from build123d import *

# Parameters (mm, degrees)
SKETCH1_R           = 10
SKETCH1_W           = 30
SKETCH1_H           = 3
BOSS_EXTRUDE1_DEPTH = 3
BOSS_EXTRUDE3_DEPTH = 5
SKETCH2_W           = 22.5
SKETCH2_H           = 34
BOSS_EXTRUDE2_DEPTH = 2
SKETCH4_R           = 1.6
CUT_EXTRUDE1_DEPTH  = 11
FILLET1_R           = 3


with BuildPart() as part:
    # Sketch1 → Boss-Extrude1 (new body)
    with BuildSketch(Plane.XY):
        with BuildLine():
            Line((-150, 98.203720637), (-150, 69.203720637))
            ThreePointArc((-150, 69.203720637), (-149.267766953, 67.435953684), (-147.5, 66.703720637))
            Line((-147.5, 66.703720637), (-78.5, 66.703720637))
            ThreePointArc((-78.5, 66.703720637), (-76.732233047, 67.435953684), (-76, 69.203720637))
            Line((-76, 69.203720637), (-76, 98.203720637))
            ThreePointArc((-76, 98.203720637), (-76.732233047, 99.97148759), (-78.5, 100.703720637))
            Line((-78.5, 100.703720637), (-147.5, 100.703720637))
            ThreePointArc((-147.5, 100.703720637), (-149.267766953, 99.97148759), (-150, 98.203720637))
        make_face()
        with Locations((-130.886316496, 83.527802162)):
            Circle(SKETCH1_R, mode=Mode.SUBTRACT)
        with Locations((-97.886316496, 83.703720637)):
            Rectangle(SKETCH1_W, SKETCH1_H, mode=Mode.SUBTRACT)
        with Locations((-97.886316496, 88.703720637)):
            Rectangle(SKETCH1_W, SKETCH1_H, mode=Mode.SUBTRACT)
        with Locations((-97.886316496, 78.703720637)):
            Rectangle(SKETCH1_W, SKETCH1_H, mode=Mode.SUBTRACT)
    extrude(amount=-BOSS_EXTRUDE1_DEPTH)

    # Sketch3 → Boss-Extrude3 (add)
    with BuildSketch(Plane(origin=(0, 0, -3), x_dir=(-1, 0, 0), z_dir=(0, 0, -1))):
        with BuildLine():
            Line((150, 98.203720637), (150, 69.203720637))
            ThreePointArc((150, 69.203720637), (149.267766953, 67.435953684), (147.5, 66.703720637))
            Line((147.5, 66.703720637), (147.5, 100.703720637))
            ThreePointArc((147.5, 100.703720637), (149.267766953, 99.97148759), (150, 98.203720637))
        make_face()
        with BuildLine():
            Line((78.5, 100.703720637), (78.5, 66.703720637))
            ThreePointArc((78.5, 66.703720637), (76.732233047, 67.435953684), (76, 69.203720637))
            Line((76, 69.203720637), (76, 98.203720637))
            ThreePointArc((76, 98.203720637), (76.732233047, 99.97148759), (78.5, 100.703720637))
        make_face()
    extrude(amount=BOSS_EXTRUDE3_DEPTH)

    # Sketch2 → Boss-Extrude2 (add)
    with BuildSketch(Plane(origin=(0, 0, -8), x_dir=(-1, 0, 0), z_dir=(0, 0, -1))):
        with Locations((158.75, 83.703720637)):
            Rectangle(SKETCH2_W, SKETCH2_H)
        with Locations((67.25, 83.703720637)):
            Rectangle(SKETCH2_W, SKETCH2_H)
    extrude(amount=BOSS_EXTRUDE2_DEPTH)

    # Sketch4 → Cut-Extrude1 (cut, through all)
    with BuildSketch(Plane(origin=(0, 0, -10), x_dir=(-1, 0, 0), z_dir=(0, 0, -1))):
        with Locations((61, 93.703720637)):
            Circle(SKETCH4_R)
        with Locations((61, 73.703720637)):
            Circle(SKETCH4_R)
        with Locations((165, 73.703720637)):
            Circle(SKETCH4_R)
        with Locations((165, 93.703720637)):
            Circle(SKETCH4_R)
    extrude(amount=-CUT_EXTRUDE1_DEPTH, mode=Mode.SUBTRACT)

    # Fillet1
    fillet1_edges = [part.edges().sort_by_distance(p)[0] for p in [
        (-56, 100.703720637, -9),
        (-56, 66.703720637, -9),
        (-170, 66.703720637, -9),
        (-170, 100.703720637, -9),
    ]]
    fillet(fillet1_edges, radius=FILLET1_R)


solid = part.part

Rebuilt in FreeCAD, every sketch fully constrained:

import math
import FreeCAD as App
import Part
import Sketcher
Q = App.Units.Quantity


def edges_at(feature, points):
    """Names of the edges that pass closest to the given points."""
    edges = feature.Shape.Edges
    near = lambda p: min(range(len(edges)), key=lambda i: edges[i].distToShape(Part.Vertex(*p))[0])
    return sorted({f"Edge{near(p) + 1}" for p in points})


def add_polygon(sketch, points):
    """Adds a closed chain of lines whose ends are joined by coincident constraints."""
    first, n = sketch.GeometryCount, len(points)
    for a, b in zip(points, points[1:] + points[:1]):
        sketch.addGeometry(Part.LineSegment(App.Vector(*a, 0), App.Vector(*b, 0)), False)
    for i in range(n):
        sketch.addConstraint(Sketcher.Constraint("Coincident", first + i, 2, first + (i + 1) % n, 1))

doc = App.newDocument("Part")
body = doc.addObject("PartDesign::Body", "Body")

# Sketch on XY plane
sketch1 = doc.addObject("Sketcher::SketchObject", "Sketch")
body.addObject(sketch1)
sketch1.AttachmentSupport = (doc.XY_Plane, [""])
sketch1.MapMode = "FlatFace"
sketch1.addGeometry(Part.LineSegment(App.Vector(-150, 98.2, 0), App.Vector(-150, 69.2, 0)), False)  # 0
sketch1.addGeometry(Part.ArcOfCircle(Part.Circle(App.Vector(-147.5, 69.2, 0), App.Vector(0, 0, 1), 2.5), math.radians(180), math.radians(270)), False)  # 1
sketch1.addGeometry(Part.LineSegment(App.Vector(-147.5, 66.7, 0), App.Vector(-78.5, 66.7, 0)), False)  # 2
sketch1.addGeometry(Part.ArcOfCircle(Part.Circle(App.Vector(-78.5, 69.2, 0), App.Vector(0, 0, 1), 2.5), math.radians(-90), math.radians(0)), False)  # 3
sketch1.addGeometry(Part.LineSegment(App.Vector(-76, 69.2, 0), App.Vector(-76, 98.2, 0)), False)  # 4
sketch1.addGeometry(Part.ArcOfCircle(Part.Circle(App.Vector(-78.5, 98.2, 0), App.Vector(0, 0, 1), 2.5), math.radians(0), math.radians(90)), False)  # 5
sketch1.addGeometry(Part.LineSegment(App.Vector(-78.5, 100.7, 0), App.Vector(-147.5, 100.7, 0)), False)  # 6
sketch1.addGeometry(Part.ArcOfCircle(Part.Circle(App.Vector(-147.5, 98.2, 0), App.Vector(0, 0, 1), 2.5), math.radians(90), math.radians(180)), False)  # 7
add_polygon(sketch1, [(-82.9, 77.2), (-112.9, 77.2), (-112.9, 80.2), (-82.9, 80.2)])  # lines 8-11
sketch1.addGeometry(Part.Circle(App.Vector(-130.9, 83.5, 0), App.Vector(0, 0, 1), 10), False)  # 12
add_polygon(sketch1, [(-82.9, 82.2), (-112.9, 82.2), (-112.9, 85.2), (-82.9, 85.2)])  # lines 13-16
add_polygon(sketch1, [(-82.9, 87.2), (-112.9, 87.2), (-112.9, 90.2), (-82.9, 90.2)])  # lines 17-20
sketch1.addConstraint(Sketcher.Constraint("Tangent", 0, 2, 1, 1))
sketch1.addConstraint(Sketcher.Constraint("Tangent", 1, 2, 2, 1))
sketch1.addConstraint(Sketcher.Constraint("Tangent", 2, 2, 3, 1))
sketch1.addConstraint(Sketcher.Constraint("Tangent", 3, 2, 4, 1))
sketch1.addConstraint(Sketcher.Constraint("Tangent", 4, 2, 5, 1))
sketch1.addConstraint(Sketcher.Constraint("Tangent", 5, 2, 6, 1))
sketch1.addConstraint(Sketcher.Constraint("Tangent", 6, 2, 7, 1))
sketch1.addConstraint(Sketcher.Constraint("Tangent", 7, 2, 0, 1))
sketch1.addConstraint(Sketcher.Constraint("Vertical", 0))
sketch1.addConstraint(Sketcher.Constraint("Horizontal", 2))
sketch1.addConstraint(Sketcher.Constraint("Vertical", 4))
sketch1.addConstraint(Sketcher.Constraint("Horizontal", 6))
sketch1.addConstraint(Sketcher.Constraint("Horizontal", 8))
sketch1.addConstraint(Sketcher.Constraint("Vertical", 9))
sketch1.addConstraint(Sketcher.Constraint("Horizontal", 10))
sketch1.addConstraint(Sketcher.Constraint("Vertical", 11))
sketch1.addConstraint(Sketcher.Constraint("Horizontal", 13))
sketch1.addConstraint(Sketcher.Constraint("Vertical", 14))
sketch1.addConstraint(Sketcher.Constraint("Horizontal", 15))
sketch1.addConstraint(Sketcher.Constraint("Vertical", 16))
sketch1.addConstraint(Sketcher.Constraint("Horizontal", 17))
sketch1.addConstraint(Sketcher.Constraint("Vertical", 18))
sketch1.addConstraint(Sketcher.Constraint("Horizontal", 19))
sketch1.addConstraint(Sketcher.Constraint("Vertical", 20))
sketch1.addConstraint(Sketcher.Constraint("Equal", 1, 3))
sketch1.addConstraint(Sketcher.Constraint("Equal", 3, 5))
sketch1.addConstraint(Sketcher.Constraint("Equal", 5, 7))
sketch1.addConstraint(Sketcher.Constraint("Vertical", 9, 2, 13, 2))
sketch1.addConstraint(Sketcher.Constraint("Vertical", 11, 2, 15, 2))
sketch1.addConstraint(Sketcher.Constraint("Vertical", 14, 2, 17, 2))
sketch1.addConstraint(Sketcher.Constraint("Vertical", 16, 2, 19, 2))
sketch1.addConstraint(Sketcher.Constraint("Equal", 11, 14))
sketch1.addConstraint(Sketcher.Constraint("Equal", 16, 18))
sketch1.addConstraint(Sketcher.Constraint("Diameter", 12, Q("20 mm")))
sketch1.addConstraint(Sketcher.Constraint("Radius", 1, Q("2.5 mm")))
sketch1.addConstraint(Sketcher.Constraint("DistanceX", 2, 1, 2, 2, Q("69 mm")))
sketch1.addConstraint(Sketcher.Constraint("DistanceX", 8, 2, 8, 1, Q("30 mm")))
sketch1.addConstraint(Sketcher.Constraint("DistanceY", 0, 2, 0, 1, Q("29 mm")))
sketch1.addConstraint(Sketcher.Constraint("DistanceY", 9, 1, 9, 2, Q("3 mm")))
sketch1.addConstraint(Sketcher.Constraint("DistanceX", 0, 2, -1, 1, Q("150 mm")))
sketch1.addConstraint(Sketcher.Constraint("DistanceX", 12, 3, 8, 2, Q("18 mm")))
sketch1.addConstraint(Sketcher.Constraint("DistanceY", 3, 3, 8, 2, Q("8 mm")))
sketch1.addConstraint(Sketcher.Constraint("DistanceY", 9, 2, 13, 2, Q("2 mm")))
sketch1.addConstraint(Sketcher.Constraint("DistanceY", 14, 2, 17, 2, Q("2 mm")))
sketch1.addConstraint(Sketcher.Constraint("DistanceY", -1, 1, 1, 3, Q("69.203721 mm")))
sketch1.addConstraint(Sketcher.Constraint("DistanceY", 1, 3, 12, 3, Q("14.324082 mm")))
sketch1.addConstraint(Sketcher.Constraint("DistanceX", 12, 3, -1, 1, Q("130.886316 mm")))
pad1 = doc.addObject("PartDesign::Pad", "Pad")
body.addObject(pad1)
pad1.Profile = sketch1
pad1.Length = 3
pad1.Reversed = True

# Sketch on XY plane
sketch2 = doc.addObject("Sketcher::SketchObject", "Sketch001")
body.addObject(sketch2)
sketch2.AttachmentSupport = (doc.XY_Plane, [""])
sketch2.MapMode = "FlatFace"
sketch2.AttachmentOffset = App.Placement(App.Vector(0, 0, -3), App.Rotation())
sketch2.addGeometry(Part.LineSegment(App.Vector(-150, 69.2, 0), App.Vector(-150, 98.2, 0)), False)
sketch2.addGeometry(Part.ArcOfCircle(Part.Circle(App.Vector(-147.5, 98.2, 0), App.Vector(0, 0, 1), 2.5), math.radians(90), math.radians(180)), False)
sketch2.addGeometry(Part.LineSegment(App.Vector(-147.5, 100.7, 0), App.Vector(-147.5, 66.7, 0)), False)
sketch2.addGeometry(Part.ArcOfCircle(Part.Circle(App.Vector(-147.5, 69.2, 0), App.Vector(0, 0, 1), 2.5), math.radians(180), math.radians(270)), False)
sketch2.addGeometry(Part.LineSegment(App.Vector(-78.5, 66.7, 0), App.Vector(-78.5, 100.7, 0)), False)
sketch2.addGeometry(Part.ArcOfCircle(Part.Circle(App.Vector(-78.5, 98.2, 0), App.Vector(0, 0, 1), 2.5), math.radians(0), math.radians(90)), False)
sketch2.addGeometry(Part.LineSegment(App.Vector(-76, 98.2, 0), App.Vector(-76, 69.2, 0)), False)
sketch2.addGeometry(Part.ArcOfCircle(Part.Circle(App.Vector(-78.5, 69.2, 0), App.Vector(0, 0, 1), 2.5), math.radians(-90), math.radians(0)), False)
sketch2.addConstraint(Sketcher.Constraint("Tangent", 0, 2, 1, 2))
sketch2.addConstraint(Sketcher.Constraint("Coincident", 1, 1, 2, 1))
sketch2.addConstraint(Sketcher.Constraint("Coincident", 2, 2, 3, 2))
sketch2.addConstraint(Sketcher.Constraint("Tangent", 3, 1, 0, 1))
sketch2.addConstraint(Sketcher.Constraint("Coincident", 4, 2, 5, 2))
sketch2.addConstraint(Sketcher.Constraint("Tangent", 5, 1, 6, 1))
sketch2.addConstraint(Sketcher.Constraint("Tangent", 6, 2, 7, 2))
sketch2.addConstraint(Sketcher.Constraint("Coincident", 7, 1, 4, 1))
sketch2.addConstraint(Sketcher.Constraint("Vertical", 0))
sketch2.addConstraint(Sketcher.Constraint("Vertical", 2))
sketch2.addConstraint(Sketcher.Constraint("Vertical", 4))
sketch2.addConstraint(Sketcher.Constraint("Vertical", 6))
sketch2.addConstraint(Sketcher.Constraint("Equal", 1, 3))
sketch2.addConstraint(Sketcher.Constraint("Equal", 3, 5))
sketch2.addConstraint(Sketcher.Constraint("Equal", 5, 7))
sketch2.addConstraint(Sketcher.Constraint("Horizontal", 1, 3, 5, 3))
sketch2.addConstraint(Sketcher.Constraint("Horizontal", 3, 3, 7, 3))
sketch2.addConstraint(Sketcher.Constraint("Vertical", 3, 3, 1, 1))
sketch2.addConstraint(Sketcher.Constraint("Vertical", 7, 3, 4, 2))
sketch2.addConstraint(Sketcher.Constraint("Radius", 1, Q("2.5 mm")))
sketch2.addConstraint(Sketcher.Constraint("DistanceY", 0, 1, 0, 2, Q("29 mm")))
sketch2.addConstraint(Sketcher.Constraint("DistanceX", 0, 2, -1, 1, Q("150 mm")))
sketch2.addConstraint(Sketcher.Constraint("DistanceX", 5, 1, -1, 1, Q("76 mm")))
sketch2.addConstraint(Sketcher.Constraint("DistanceY", -1, 1, 1, 3, Q("98.203721 mm")))
pad2 = doc.addObject("PartDesign::Pad", "Pad001")
body.addObject(pad2)
pad2.Profile = sketch2
pad2.Length = 5
pad2.Reversed = True

# Sketch on XY plane
sketch3 = doc.addObject("Sketcher::SketchObject", "Sketch002")
body.addObject(sketch3)
sketch3.AttachmentSupport = (doc.XY_Plane, [""])
sketch3.MapMode = "FlatFace"
sketch3.AttachmentOffset = App.Placement(App.Vector(0, 0, -8), App.Rotation())
add_polygon(sketch3, [(-148, 101), (-148, 67), (-170, 67), (-170, 101)])  # lines 0-3
add_polygon(sketch3, [(-56, 101), (-56, 67), (-78, 67), (-78, 101)])  # lines 4-7
sketch3.addConstraint(Sketcher.Constraint("Vertical", 0))
sketch3.addConstraint(Sketcher.Constraint("Horizontal", 1))
sketch3.addConstraint(Sketcher.Constraint("Vertical", 2))
sketch3.addConstraint(Sketcher.Constraint("Horizontal", 3))
sketch3.addConstraint(Sketcher.Constraint("Vertical", 4))
sketch3.addConstraint(Sketcher.Constraint("Horizontal", 5))
sketch3.addConstraint(Sketcher.Constraint("Vertical", 6))
sketch3.addConstraint(Sketcher.Constraint("Horizontal", 7))
sketch3.addConstraint(Sketcher.Constraint("Horizontal", 1, 2, 4, 2))
sketch3.addConstraint(Sketcher.Constraint("Horizontal", 3, 2, 6, 2))
sketch3.addConstraint(Sketcher.Constraint("Equal", 3, 5))
sketch3.addConstraint(Sketcher.Constraint("DistanceY", 0, 2, 0, 1, Q("34 mm")))
sketch3.addConstraint(Sketcher.Constraint("DistanceX", 1, 2, 1, 1, Q("22.5 mm")))
sketch3.addConstraint(Sketcher.Constraint("DistanceX", 1, 2, -1, 1, Q("170 mm")))
sketch3.addConstraint(Sketcher.Constraint("DistanceX", 4, 2, -1, 1, Q("56 mm")))
sketch3.addConstraint(Sketcher.Constraint("DistanceY", -1, 1, 0, 2, Q("66.703721 mm")))
pad3 = doc.addObject("PartDesign::Pad", "Pad002")
body.addObject(pad3)
pad3.Profile = sketch3
pad3.Length = 2
pad3.Reversed = True

# Sketch on XY plane
sketch4 = doc.addObject("Sketcher::SketchObject", "Sketch003")
body.addObject(sketch4)
sketch4.AttachmentSupport = (doc.XY_Plane, [""])
sketch4.MapMode = "FlatFace"
sketch4.AttachmentOffset = App.Placement(App.Vector(0, 0, -10), App.Rotation())
sketch4.addGeometry(Part.Circle(App.Vector(-61, 93.7, 0), App.Vector(0, 0, 1), 1.6), False)
sketch4.addGeometry(Part.Circle(App.Vector(-61, 73.7, 0), App.Vector(0, 0, 1), 1.6), False)
sketch4.addGeometry(Part.Circle(App.Vector(-165, 73.7, 0), App.Vector(0, 0, 1), 1.6), False)
sketch4.addGeometry(Part.Circle(App.Vector(-165, 93.7, 0), App.Vector(0, 0, 1), 1.6), False)
sketch4.addConstraint(Sketcher.Constraint("Equal", 0, 1))
sketch4.addConstraint(Sketcher.Constraint("Equal", 1, 2))
sketch4.addConstraint(Sketcher.Constraint("Equal", 2, 3))
sketch4.addConstraint(Sketcher.Constraint("Horizontal", 1, 3, 2, 3))
sketch4.addConstraint(Sketcher.Constraint("Horizontal", 0, 3, 3, 3))
sketch4.addConstraint(Sketcher.Constraint("Vertical", 0, 3, 1, 3))
sketch4.addConstraint(Sketcher.Constraint("Vertical", 2, 3, 3, 3))
sketch4.addConstraint(Sketcher.Constraint("Diameter", 0, Q("3.2 mm")))
sketch4.addConstraint(Sketcher.Constraint("DistanceX", 0, 3, -1, 1, Q("61 mm")))
sketch4.addConstraint(Sketcher.Constraint("DistanceX", 2, 3, -1, 1, Q("165 mm")))
sketch4.addConstraint(Sketcher.Constraint("DistanceY", 1, 3, 0, 3, Q("20 mm")))
sketch4.addConstraint(Sketcher.Constraint("DistanceY", -1, 1, 0, 3, Q("93.703721 mm")))
pocket1 = doc.addObject("PartDesign::Pocket", "Pocket")
body.addObject(pocket1)
pocket1.Profile = sketch4
pocket1.Type = "ThroughAll"
pocket1.Reversed = True
doc.recompute()

fillet = doc.addObject("PartDesign::Fillet", "Fillet")
body.addObject(fillet)
fillet.Base = (pocket1, edges_at(pocket1, [
    (-56, 100.704, -9),
    (-56, 66.704, -9),
    (-170, 66.704, -9),
    (-170, 100.704, -9),
]))
fillet.Radius = 3

doc.recompute()
